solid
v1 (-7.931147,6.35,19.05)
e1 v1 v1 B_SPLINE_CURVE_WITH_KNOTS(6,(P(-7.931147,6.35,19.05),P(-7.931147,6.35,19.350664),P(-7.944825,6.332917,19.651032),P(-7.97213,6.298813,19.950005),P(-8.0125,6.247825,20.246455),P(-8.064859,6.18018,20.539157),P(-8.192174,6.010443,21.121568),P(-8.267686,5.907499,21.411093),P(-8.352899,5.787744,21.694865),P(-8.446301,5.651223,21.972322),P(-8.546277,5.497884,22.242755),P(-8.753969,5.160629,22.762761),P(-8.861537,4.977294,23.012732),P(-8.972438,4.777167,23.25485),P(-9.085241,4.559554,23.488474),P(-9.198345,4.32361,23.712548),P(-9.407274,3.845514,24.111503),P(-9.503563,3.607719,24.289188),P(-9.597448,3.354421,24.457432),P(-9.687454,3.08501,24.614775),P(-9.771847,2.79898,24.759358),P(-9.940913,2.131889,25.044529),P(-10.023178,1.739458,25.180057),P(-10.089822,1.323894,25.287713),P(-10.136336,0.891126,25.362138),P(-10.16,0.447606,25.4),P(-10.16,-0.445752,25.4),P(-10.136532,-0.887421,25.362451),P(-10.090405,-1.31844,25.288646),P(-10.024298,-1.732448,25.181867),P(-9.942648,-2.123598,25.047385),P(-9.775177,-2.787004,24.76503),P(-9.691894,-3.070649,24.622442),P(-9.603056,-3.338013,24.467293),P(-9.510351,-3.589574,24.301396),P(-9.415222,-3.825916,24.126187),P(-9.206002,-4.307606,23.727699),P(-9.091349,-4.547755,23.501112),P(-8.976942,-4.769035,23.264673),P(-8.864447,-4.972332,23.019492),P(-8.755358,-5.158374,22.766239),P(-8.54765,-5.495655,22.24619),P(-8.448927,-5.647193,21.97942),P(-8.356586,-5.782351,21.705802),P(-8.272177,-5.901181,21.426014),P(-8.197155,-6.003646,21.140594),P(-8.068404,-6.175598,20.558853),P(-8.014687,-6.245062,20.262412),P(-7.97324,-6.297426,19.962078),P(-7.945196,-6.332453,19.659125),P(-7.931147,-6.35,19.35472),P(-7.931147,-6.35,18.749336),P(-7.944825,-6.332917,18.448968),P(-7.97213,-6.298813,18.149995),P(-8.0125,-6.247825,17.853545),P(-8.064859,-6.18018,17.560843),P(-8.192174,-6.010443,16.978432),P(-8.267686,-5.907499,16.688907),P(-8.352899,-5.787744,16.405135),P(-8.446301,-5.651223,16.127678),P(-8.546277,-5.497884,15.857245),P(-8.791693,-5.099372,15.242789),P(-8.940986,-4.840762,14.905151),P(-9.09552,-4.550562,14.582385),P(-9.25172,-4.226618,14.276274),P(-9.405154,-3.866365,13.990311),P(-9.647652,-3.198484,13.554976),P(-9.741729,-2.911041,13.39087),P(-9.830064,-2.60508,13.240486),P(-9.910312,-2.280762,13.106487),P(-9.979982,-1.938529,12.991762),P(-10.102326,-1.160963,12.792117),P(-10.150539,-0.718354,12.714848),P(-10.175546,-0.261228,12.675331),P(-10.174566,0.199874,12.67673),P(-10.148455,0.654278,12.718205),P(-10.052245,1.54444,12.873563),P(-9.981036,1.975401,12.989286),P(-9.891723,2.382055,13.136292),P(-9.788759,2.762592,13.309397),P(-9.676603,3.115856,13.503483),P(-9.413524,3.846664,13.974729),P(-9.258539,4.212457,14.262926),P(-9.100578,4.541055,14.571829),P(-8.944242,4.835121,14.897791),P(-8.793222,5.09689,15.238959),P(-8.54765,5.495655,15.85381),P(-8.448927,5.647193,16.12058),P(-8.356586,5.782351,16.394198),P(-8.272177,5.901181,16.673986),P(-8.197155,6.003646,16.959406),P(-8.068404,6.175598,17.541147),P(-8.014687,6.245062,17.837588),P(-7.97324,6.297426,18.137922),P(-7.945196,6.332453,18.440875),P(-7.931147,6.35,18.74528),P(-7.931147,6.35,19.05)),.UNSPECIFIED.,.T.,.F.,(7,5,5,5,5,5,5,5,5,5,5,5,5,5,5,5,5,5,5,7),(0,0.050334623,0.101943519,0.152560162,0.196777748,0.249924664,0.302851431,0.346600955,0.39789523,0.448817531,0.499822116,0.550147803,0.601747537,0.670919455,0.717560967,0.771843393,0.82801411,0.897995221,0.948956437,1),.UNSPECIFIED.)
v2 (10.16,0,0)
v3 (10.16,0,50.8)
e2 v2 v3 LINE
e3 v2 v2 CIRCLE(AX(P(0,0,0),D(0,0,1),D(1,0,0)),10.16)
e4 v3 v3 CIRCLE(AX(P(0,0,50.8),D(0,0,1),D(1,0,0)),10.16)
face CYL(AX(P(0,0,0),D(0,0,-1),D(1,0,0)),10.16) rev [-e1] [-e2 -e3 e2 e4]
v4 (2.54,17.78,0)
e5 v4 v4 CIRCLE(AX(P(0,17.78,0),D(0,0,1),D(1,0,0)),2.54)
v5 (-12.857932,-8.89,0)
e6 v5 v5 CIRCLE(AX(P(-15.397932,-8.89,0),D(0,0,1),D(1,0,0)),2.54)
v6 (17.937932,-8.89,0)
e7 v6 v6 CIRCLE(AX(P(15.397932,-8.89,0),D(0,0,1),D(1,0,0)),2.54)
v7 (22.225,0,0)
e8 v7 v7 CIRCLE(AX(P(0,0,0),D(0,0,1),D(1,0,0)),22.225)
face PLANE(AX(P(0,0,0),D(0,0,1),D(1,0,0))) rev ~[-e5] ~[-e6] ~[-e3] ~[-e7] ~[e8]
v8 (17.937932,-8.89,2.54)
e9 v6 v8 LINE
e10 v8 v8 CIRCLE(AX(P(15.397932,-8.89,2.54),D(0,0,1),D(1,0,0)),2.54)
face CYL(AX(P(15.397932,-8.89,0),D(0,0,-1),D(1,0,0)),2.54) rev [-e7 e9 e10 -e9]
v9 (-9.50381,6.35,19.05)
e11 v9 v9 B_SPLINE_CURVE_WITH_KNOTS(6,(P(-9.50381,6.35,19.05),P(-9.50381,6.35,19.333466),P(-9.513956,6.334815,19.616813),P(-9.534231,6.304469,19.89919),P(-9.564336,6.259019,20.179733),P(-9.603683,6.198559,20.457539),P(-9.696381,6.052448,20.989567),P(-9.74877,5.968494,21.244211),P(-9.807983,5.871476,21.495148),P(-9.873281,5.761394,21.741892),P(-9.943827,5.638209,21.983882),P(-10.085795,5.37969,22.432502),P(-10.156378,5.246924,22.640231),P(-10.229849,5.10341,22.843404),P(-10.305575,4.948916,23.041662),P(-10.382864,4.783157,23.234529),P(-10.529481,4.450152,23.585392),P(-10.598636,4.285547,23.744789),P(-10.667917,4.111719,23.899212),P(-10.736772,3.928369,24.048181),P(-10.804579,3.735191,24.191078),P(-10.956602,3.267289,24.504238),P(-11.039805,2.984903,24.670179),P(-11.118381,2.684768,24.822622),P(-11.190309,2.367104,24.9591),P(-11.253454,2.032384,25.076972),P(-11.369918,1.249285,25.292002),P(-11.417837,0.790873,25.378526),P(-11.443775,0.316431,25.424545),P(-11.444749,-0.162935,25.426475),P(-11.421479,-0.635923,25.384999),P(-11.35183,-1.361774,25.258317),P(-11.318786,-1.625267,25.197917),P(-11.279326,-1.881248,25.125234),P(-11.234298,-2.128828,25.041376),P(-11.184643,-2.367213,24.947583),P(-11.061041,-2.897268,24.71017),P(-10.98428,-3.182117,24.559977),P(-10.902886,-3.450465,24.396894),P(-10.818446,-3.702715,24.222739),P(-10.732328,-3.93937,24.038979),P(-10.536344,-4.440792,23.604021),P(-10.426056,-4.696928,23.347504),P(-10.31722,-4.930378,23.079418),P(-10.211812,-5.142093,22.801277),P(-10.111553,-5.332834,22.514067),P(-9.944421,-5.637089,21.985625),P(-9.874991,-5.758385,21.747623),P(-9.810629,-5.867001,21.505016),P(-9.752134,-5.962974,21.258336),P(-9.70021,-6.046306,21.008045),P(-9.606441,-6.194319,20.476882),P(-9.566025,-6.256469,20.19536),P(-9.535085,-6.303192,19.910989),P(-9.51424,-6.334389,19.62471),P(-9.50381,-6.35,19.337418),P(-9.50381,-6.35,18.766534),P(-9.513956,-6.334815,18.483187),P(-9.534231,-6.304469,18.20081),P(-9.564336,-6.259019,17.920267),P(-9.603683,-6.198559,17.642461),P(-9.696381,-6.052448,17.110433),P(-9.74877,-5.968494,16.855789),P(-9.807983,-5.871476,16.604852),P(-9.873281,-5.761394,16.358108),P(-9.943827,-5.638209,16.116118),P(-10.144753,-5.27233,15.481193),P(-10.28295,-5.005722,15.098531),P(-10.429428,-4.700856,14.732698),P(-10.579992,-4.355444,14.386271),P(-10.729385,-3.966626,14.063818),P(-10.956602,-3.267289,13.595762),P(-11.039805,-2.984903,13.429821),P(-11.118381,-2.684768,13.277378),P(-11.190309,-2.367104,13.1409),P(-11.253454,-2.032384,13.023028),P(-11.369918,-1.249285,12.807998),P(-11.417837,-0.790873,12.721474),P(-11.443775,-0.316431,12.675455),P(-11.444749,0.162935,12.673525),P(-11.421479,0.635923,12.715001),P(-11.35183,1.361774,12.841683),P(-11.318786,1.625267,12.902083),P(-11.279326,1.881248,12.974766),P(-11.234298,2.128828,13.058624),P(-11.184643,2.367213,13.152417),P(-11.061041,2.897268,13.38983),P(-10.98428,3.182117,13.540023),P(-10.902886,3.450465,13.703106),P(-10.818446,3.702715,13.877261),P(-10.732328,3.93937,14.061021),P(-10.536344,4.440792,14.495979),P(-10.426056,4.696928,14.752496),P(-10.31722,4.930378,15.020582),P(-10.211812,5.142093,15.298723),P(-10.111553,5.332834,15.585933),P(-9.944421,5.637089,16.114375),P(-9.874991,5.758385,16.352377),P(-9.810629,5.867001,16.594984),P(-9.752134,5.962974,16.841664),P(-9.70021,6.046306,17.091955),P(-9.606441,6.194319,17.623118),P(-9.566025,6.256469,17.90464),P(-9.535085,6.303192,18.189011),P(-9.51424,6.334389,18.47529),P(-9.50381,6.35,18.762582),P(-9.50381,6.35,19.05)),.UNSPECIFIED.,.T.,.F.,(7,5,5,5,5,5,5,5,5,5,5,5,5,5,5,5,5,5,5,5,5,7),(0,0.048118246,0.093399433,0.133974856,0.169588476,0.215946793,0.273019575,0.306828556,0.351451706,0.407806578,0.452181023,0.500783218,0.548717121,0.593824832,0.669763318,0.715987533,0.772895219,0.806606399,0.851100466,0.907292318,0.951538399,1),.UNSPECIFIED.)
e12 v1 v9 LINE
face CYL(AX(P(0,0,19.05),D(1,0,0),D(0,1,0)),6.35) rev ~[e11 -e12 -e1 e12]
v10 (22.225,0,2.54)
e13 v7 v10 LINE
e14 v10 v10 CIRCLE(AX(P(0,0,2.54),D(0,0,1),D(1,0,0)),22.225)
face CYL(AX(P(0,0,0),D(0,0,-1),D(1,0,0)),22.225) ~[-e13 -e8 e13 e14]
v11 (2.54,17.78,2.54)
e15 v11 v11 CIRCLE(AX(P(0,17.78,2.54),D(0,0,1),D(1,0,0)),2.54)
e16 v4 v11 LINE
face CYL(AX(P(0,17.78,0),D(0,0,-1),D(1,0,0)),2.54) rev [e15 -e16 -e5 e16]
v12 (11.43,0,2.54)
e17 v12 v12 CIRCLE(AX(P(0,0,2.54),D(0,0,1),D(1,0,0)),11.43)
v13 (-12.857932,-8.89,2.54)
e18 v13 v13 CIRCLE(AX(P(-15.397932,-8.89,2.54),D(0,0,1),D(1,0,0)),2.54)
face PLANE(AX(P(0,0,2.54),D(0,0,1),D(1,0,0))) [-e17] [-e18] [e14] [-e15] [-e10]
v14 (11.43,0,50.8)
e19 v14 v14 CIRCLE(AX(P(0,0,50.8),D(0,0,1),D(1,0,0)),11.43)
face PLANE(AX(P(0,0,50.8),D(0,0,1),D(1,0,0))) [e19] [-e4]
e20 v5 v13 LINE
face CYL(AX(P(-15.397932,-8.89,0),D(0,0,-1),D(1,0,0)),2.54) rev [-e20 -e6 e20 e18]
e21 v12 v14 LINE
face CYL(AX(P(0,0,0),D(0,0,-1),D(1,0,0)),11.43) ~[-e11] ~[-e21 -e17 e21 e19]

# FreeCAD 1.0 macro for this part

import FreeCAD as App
import Part
import Sketcher

V = App.Vector
Q = App.Units.Quantity

doc = App.newDocument("Part")
body = doc.addObject("PartDesign::Body", "Body")

# Sketch on XY plane
sketch1 = body.newObject("Sketcher::SketchObject", "Sketch")
sketch1.AttachmentSupport = (doc.getObject("XY_Plane"), [""])
sketch1.MapMode = "FlatFace"
sketch1.addGeometry([
    Part.Circle(V(0, 0, 0), V(0, 0, 1), 11),
    Part.Circle(V(0, 0, 0), V(0, 0, 1), 10),
], False)
sketch1.addConstraint([
    Sketcher.Constraint("Coincident", 0, 3, -1, 1),
    Sketcher.Constraint("Coincident", 1, 3, -1, 1),
    Sketcher.Constraint("Diameter", 0, Q("0.9 in")),
    Sketcher.Constraint("Diameter", 1, Q("0.8 in")),
])
pad1 = body.newObject("PartDesign::Pad", "Pad")
pad1.Profile = sketch1
pad1.Length = Q("2 in")

# Sketch on XY plane
sketch2 = body.newObject("Sketcher::SketchObject", "Sketch001")
sketch2.AttachmentSupport = (doc.getObject("XY_Plane"), [""])
sketch2.MapMode = "FlatFace"
sketch2.addGeometry([
    Part.Circle(V(0, 0, 0), V(0, 0, 1), 22.2),  # 0
    Part.Circle(V(-15.4, -8.9, 0), V(0, 0, 1), 2.5),  # 1
    Part.Circle(V(0, 0, 0), V(0, 0, 1), 11.4),  # 2
    Part.Circle(V(15.4, -8.9, 0), V(0, 0, 1), 2.5),  # 3
    Part.Circle(V(0, 17.8, 0), V(0, 0, 1), 2.5),  # 4
], False)
sketch2.addConstraint([
    Sketcher.Constraint("Coincident", 0, 3, -1, 1),
    Sketcher.Constraint("Coincident", 2, 3, -1, 1),
    Sketcher.Constraint("Equal", 1, 3),
    Sketcher.Constraint("Equal", 3, 4),
    Sketcher.Constraint("Symmetric", 1, 3, 3, 3, -2),
    Sketcher.Constraint("PointOnObject", 4, 3, -2),
    Sketcher.Constraint("Diameter", 1, Q("0.2 in")),
    Sketcher.Constraint("Diameter", 2, Q("0.9 in")),
    Sketcher.Constraint("Diameter", 0, Q("1.75 in")),
    Sketcher.Constraint("DistanceY", -1, 1, 4, 3, Q("0.7 in")),
    Sketcher.Constraint("DistanceY", 1, 3, -1, 1, Q("0.35 in")),
    Sketcher.Constraint("DistanceX", 1, 3, -1, 1, Q("15.397932 mm")),
])
pad2 = body.newObject("PartDesign::Pad", "Pad001")
pad2.Profile = sketch2
pad2.Length = Q("0.1 in")

# Sketch on YZ plane
sketch3 = body.newObject("Sketcher::SketchObject", "Sketch002")
sketch3.AttachmentSupport = (doc.getObject("YZ_Plane"), [""])
sketch3.MapMode = "FlatFace"
sketch3.addGeometry(Part.Circle(V(0, 19, 0), V(0, 0, 1), 6), False)
sketch3.addConstraint([
    Sketcher.Constraint("PointOnObject", 0, 3, -2),
    Sketcher.Constraint("Diameter", 0, Q("0.5 in")),
    Sketcher.Constraint("DistanceY", -1, 1, 0, 3, Q("0.75 in")),
])
pocket1 = body.newObject("PartDesign::Pocket", "Pocket")
pocket1.Profile = sketch3
pocket1.Length = Q("0.5 in")

doc.recompute()
